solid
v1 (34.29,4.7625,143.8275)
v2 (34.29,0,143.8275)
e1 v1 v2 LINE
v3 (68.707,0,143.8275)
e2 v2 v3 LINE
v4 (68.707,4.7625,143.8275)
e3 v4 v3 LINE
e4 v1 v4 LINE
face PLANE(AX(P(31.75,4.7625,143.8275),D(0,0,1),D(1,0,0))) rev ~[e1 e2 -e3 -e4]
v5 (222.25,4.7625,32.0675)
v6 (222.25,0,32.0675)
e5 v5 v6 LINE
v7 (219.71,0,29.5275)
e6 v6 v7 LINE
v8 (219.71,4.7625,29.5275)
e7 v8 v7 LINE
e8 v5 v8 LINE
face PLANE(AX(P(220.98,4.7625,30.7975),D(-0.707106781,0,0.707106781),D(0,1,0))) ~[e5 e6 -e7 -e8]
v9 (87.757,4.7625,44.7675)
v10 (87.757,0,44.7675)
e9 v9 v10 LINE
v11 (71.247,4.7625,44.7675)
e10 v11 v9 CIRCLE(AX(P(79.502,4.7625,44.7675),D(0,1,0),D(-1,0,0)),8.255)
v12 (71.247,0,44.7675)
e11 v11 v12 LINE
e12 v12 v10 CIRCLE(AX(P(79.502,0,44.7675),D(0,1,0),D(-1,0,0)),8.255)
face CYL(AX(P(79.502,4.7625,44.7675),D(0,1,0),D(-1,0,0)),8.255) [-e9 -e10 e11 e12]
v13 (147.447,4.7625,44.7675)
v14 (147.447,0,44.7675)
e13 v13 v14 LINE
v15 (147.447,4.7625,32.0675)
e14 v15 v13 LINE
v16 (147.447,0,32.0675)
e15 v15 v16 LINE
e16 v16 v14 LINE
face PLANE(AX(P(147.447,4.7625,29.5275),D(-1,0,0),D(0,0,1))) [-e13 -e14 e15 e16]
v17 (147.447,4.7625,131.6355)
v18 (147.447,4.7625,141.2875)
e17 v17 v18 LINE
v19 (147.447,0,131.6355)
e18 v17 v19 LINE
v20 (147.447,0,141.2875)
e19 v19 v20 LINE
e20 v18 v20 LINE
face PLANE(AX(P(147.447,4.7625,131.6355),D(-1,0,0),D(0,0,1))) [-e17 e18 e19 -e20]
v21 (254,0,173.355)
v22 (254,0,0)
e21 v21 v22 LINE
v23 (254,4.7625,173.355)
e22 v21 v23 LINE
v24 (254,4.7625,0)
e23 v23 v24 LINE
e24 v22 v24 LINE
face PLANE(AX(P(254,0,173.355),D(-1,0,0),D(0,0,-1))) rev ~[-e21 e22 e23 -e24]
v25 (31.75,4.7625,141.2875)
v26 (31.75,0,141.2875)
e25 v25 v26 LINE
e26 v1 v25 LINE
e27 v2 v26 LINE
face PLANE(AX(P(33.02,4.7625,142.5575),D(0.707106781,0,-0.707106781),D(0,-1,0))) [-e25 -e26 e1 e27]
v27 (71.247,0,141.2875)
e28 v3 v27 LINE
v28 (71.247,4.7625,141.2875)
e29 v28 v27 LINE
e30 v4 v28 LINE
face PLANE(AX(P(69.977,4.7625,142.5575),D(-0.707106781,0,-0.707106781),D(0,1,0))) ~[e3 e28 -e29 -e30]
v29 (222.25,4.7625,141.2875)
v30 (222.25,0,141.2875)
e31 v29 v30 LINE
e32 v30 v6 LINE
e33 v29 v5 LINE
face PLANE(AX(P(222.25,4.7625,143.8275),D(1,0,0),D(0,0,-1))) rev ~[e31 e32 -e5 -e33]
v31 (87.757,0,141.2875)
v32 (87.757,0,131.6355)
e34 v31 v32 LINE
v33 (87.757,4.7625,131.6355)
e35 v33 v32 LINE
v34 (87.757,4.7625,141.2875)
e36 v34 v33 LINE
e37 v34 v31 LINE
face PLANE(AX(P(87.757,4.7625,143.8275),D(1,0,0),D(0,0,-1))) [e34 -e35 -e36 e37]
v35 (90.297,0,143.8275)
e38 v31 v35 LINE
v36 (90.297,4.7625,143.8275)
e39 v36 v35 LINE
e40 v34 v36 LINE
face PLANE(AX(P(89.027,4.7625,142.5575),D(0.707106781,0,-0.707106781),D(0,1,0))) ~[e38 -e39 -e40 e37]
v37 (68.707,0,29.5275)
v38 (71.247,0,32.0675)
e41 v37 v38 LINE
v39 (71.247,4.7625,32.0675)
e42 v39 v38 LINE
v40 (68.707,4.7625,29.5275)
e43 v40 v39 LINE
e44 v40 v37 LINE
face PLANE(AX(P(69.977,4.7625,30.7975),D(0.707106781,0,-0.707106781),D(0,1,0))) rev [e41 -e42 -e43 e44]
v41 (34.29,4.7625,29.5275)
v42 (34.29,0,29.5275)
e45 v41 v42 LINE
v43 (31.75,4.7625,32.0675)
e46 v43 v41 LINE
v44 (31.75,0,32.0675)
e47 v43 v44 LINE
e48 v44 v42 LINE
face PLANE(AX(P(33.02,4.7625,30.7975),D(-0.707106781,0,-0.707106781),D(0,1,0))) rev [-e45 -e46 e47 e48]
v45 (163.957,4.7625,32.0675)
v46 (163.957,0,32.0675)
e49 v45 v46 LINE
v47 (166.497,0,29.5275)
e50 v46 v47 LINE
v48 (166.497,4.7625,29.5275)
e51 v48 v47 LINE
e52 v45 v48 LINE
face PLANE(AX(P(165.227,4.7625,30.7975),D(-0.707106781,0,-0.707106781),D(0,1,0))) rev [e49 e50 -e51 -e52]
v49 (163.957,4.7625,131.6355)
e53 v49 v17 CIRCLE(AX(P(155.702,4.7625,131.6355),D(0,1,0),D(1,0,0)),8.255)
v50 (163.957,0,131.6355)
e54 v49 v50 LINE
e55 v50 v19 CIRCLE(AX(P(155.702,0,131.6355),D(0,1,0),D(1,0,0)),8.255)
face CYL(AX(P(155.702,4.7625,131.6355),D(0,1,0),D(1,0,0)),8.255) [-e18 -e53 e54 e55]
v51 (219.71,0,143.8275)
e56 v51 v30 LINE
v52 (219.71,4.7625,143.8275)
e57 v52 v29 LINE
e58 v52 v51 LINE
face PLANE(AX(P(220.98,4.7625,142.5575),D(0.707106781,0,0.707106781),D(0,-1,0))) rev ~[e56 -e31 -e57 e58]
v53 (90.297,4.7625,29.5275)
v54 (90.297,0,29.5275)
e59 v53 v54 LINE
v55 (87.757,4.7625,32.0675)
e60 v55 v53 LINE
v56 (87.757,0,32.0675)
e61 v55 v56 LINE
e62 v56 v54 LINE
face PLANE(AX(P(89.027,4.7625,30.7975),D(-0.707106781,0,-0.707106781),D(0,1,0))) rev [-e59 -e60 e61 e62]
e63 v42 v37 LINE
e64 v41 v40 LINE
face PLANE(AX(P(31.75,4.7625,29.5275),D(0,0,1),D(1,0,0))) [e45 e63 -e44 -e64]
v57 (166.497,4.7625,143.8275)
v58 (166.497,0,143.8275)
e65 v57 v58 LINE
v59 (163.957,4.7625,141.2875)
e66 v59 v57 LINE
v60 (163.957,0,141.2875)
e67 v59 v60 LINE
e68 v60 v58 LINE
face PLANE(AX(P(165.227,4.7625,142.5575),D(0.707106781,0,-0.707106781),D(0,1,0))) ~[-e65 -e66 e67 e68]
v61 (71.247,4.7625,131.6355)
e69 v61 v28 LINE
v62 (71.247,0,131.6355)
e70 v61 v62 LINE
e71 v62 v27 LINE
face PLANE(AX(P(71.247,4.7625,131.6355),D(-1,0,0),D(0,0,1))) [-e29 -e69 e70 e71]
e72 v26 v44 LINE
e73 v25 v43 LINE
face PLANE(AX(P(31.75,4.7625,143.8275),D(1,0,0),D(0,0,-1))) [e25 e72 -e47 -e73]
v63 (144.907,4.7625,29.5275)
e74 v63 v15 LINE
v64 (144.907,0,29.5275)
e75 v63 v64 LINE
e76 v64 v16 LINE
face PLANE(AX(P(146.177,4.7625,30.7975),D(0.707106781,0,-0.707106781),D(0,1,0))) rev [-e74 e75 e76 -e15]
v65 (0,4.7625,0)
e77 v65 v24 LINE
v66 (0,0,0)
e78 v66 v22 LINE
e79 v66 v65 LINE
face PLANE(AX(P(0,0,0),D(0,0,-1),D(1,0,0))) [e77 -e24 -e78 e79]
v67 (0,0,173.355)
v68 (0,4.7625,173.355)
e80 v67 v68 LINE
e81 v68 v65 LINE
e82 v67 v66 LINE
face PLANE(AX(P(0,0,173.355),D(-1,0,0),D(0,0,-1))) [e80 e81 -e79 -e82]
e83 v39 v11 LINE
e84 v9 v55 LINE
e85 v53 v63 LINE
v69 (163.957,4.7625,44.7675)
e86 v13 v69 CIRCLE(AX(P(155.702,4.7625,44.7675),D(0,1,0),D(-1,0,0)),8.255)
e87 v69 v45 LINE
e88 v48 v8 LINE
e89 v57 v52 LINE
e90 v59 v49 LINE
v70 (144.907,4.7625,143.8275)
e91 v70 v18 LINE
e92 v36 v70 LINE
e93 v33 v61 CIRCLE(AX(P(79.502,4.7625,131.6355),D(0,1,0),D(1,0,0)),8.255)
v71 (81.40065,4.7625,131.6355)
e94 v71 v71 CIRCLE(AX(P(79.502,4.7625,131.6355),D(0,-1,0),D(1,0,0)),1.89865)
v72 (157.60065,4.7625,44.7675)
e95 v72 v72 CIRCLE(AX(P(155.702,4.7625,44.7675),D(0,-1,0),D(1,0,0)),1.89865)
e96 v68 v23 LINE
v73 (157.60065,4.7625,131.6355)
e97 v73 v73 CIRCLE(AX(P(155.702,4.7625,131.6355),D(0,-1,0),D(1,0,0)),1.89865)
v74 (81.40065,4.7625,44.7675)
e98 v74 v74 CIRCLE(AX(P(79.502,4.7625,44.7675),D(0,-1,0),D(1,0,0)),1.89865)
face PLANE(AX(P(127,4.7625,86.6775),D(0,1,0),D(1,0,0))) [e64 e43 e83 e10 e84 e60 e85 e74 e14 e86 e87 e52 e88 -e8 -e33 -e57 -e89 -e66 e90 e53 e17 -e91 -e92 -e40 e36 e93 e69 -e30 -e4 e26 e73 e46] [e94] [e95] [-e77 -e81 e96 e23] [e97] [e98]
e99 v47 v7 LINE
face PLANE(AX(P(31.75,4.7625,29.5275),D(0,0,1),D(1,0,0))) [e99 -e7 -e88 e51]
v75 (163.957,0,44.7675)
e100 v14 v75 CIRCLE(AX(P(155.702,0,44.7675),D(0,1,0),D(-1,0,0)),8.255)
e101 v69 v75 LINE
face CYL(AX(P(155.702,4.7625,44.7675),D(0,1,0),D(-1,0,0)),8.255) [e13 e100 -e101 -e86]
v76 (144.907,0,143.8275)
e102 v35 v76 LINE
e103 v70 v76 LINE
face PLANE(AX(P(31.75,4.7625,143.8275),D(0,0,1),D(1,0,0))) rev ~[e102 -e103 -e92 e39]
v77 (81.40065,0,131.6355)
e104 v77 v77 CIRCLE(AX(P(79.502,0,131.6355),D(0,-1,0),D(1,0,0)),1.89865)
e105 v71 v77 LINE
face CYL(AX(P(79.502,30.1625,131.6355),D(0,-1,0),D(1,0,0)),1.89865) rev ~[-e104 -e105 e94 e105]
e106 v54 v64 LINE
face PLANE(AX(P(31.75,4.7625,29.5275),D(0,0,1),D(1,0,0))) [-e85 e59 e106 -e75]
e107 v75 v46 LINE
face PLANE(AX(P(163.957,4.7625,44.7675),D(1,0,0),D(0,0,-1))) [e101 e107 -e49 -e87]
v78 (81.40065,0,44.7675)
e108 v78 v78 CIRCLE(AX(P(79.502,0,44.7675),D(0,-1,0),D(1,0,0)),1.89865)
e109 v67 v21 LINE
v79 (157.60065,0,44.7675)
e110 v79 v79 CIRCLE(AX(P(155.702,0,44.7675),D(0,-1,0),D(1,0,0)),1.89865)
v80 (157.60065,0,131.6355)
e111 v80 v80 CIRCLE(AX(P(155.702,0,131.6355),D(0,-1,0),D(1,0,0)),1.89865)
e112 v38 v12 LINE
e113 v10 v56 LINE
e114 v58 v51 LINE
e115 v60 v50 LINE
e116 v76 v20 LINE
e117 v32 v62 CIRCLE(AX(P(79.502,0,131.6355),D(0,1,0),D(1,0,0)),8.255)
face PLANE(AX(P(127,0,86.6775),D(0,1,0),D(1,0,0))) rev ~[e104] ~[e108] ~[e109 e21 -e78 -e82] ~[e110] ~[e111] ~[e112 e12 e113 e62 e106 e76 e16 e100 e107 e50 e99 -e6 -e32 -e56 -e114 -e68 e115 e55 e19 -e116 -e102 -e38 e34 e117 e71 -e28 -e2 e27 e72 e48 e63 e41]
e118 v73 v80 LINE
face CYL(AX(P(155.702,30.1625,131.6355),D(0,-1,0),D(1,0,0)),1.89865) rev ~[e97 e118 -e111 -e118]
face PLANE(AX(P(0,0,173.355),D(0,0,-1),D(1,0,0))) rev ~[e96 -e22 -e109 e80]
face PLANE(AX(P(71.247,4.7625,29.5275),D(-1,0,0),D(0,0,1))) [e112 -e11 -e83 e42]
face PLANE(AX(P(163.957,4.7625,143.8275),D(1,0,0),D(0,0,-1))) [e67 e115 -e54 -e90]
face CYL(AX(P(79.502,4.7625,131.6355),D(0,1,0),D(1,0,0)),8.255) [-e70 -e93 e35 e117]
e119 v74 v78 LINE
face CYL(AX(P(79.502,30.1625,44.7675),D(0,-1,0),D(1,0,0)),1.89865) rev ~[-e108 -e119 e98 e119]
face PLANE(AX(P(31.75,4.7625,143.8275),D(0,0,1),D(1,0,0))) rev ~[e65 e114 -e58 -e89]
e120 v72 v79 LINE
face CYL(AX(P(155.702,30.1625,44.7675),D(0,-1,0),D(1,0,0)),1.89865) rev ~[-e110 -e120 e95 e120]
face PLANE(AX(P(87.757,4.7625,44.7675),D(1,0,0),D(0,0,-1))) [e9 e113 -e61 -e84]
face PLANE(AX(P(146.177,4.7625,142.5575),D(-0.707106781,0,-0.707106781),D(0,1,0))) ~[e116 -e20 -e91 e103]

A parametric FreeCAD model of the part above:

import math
import FreeCAD as App
import Part
import Sketcher
from FreeCAD import Vector
Q = App.Units.Quantity


def edges_at(feature, points):
    """Names of the edges that pass closest to the given points."""
    edges = feature.Shape.Edges
    near = lambda p: min(range(len(edges)), key=lambda i: edges[i].distToShape(Part.Vertex(*p))[0])
    return sorted({f"Edge{near(p) + 1}" for p in points})

doc = App.newDocument("Part")
body = doc.addObject("PartDesign::Body", "Body")

sketch1 = doc.addObject("Sketcher::SketchObject", "Sketch")
body.addObject(sketch1)
sketch1.AttachmentSupport = (doc.XZ_Plane, [""])
sketch1.MapMode = "FlatFace"
sketch1.addGeometry([
    Part.LineSegment(Vector(0, 0, 0), Vector(0, 173, 0)),
    Part.LineSegment(Vector(0, 173, 0), Vector(254, 173, 0)),
    Part.LineSegment(Vector(254, 173, 0), Vector(254, 0, 0)),
    Part.LineSegment(Vector(254, 0, 0), Vector(0, 0, 0)),
], False)
sketch1.addConstraint([
    Sketcher.Constraint("Coincident", 0, 2, 1, 1),
    Sketcher.Constraint("Coincident", 1, 2, 2, 1),
    Sketcher.Constraint("Coincident", 2, 2, 3, 1),
    Sketcher.Constraint("Coincident", 3, 2, 0, 1),
    Sketcher.Constraint("Vertical", 0),
    Sketcher.Constraint("Horizontal", 1),
    Sketcher.Constraint("Vertical", 2),
    Sketcher.Constraint("Horizontal", 3),
    Sketcher.Constraint("Coincident", 3, 2, -1, 1),
    Sketcher.Constraint("DistanceX", 1, 1, 1, 2, Q("10 in")),
    Sketcher.Constraint("DistanceY", 0, 1, 0, 2, Q("6.825 in")),
])
pad1 = doc.addObject("PartDesign::Pad", "Pad")
body.addObject(pad1)
pad1.Profile = sketch1
pad1.Length = Q("0.1875 in")
pad1.Reversed = True

sketch2 = doc.addObject("Sketcher::SketchObject", "Sketch001")
body.addObject(sketch2)
sketch2.AttachmentSupport = (doc.XZ_Plane, [""])
sketch2.MapMode = "FlatFace"
sketch2.AttachmentOffset = App.Placement(Vector(0, 0, -0.1875 * 25.4), App.Rotation())
sketch2.addGeometry([
    Part.LineSegment(Vector(32, 30, 0), Vector(32, 144, 0)),
    Part.LineSegment(Vector(32, 144, 0), Vector(222, 144, 0)),
    Part.LineSegment(Vector(222, 144, 0), Vector(222, 30, 0)),
    Part.LineSegment(Vector(222, 30, 0), Vector(32, 30, 0)),
], False)
sketch2.addConstraint([
    Sketcher.Constraint("Coincident", 0, 2, 1, 1),
    Sketcher.Constraint("Coincident", 1, 2, 2, 1),
    Sketcher.Constraint("Coincident", 2, 2, 3, 1),
    Sketcher.Constraint("Coincident", 3, 2, 0, 1),
    Sketcher.Constraint("Vertical", 0),
    Sketcher.Constraint("Horizontal", 1),
    Sketcher.Constraint("Vertical", 2),
    Sketcher.Constraint("Horizontal", 3),
    Sketcher.Constraint("DistanceX", 1, 1, 1, 2, Q("7.5 in")),
    Sketcher.Constraint("DistanceY", 0, 1, 0, 2, Q("4.5 in")),
    Sketcher.Constraint("DistanceX", -1, 1, 0, 2, Q("1.25 in")),
    Sketcher.Constraint("DistanceY", -1, 1, 0, 2, Q("5.6625 in")),
])
pocket1 = doc.addObject("PartDesign::Pocket", "Pocket")
body.addObject(pocket1)
pocket1.Profile = sketch2
pocket1.Length = Q("0.1875 in")
pocket1.Reversed = True

sketch3 = doc.addObject("Sketcher::SketchObject", "Sketch002")
body.addObject(sketch3)
sketch3.AttachmentSupport = (doc.XZ_Plane, [""])
sketch3.MapMode = "FlatFace"
sketch3.AttachmentOffset = App.Placement(Vector(0, 0, -0.1875 * 25.4), App.Rotation())
sketch3.addGeometry([
    Part.LineSegment(Vector(164, 30, 0), Vector(147, 30, 0)),
    Part.LineSegment(Vector(147, 30, 0), Vector(147, 45, 0)),
    Part.ArcOfCircle(Part.Circle(Vector(156, 45, 0), Vector(0, 0, 1), 8), math.radians(0), math.radians(180)),
    Part.LineSegment(Vector(164, 45, 0), Vector(164, 30, 0)),
    Part.LineSegment(Vector(71, 30, 0), Vector(71, 45, 0)),
    Part.ArcOfCircle(Part.Circle(Vector(80, 45, 0), Vector(0, 0, 1), 8), math.radians(0), math.radians(180)),
    Part.LineSegment(Vector(88, 45, 0), Vector(88, 30, 0)),
    Part.LineSegment(Vector(88, 30, 0), Vector(71, 30, 0)),
    Part.LineSegment(Vector(71, 144, 0), Vector(88, 144, 0)),
    Part.LineSegment(Vector(88, 144, 0), Vector(88, 132, 0)),
    Part.ArcOfCircle(Part.Circle(Vector(80, 132, 0), Vector(0, 0, 1), 8), math.radians(180), math.radians(360)),
    Part.LineSegment(Vector(71, 132, 0), Vector(71, 144, 0)),
    Part.LineSegment(Vector(147, 132, 0), Vector(147, 144, 0)),
    Part.LineSegment(Vector(147, 144, 0), Vector(164, 144, 0)),
    Part.LineSegment(Vector(164, 144, 0), Vector(164, 132, 0)),
    Part.ArcOfCircle(Part.Circle(Vector(156, 132, 0), Vector(0, 0, 1), 8), math.radians(180), math.radians(360)),
], False)
sketch3.addConstraint([
    Sketcher.Constraint("Coincident", 0, 2, 1, 1),
    Sketcher.Constraint("Tangent", 1, 2, 2, 2),
    Sketcher.Constraint("Tangent", 2, 1, 3, 1),
    Sketcher.Constraint("Coincident", 3, 2, 0, 1),
    Sketcher.Constraint("Tangent", 4, 2, 5, 2),
    Sketcher.Constraint("Tangent", 5, 1, 6, 1),
    Sketcher.Constraint("Coincident", 6, 2, 7, 1),
    Sketcher.Constraint("Coincident", 7, 2, 4, 1),
    Sketcher.Constraint("Coincident", 8, 2, 9, 1),
    Sketcher.Constraint("Tangent", 9, 2, 10, 2),
    Sketcher.Constraint("Tangent", 10, 1, 11, 1),
    Sketcher.Constraint("Coincident", 11, 2, 8, 1),
    Sketcher.Constraint("Coincident", 12, 2, 13, 1),
    Sketcher.Constraint("Coincident", 13, 2, 14, 1),
    Sketcher.Constraint("Tangent", 14, 2, 15, 2),
    Sketcher.Constraint("Tangent", 15, 1, 12, 1),
    Sketcher.Constraint("Horizontal", 0),
    Sketcher.Constraint("Vertical", 1),
    Sketcher.Constraint("Vertical", 3),
    Sketcher.Constraint("Vertical", 4),
    Sketcher.Constraint("Vertical", 6),
    Sketcher.Constraint("Horizontal", 7),
    Sketcher.Constraint("Horizontal", 8),
    Sketcher.Constraint("Vertical", 9),
    Sketcher.Constraint("Vertical", 11),
    Sketcher.Constraint("Vertical", 12),
    Sketcher.Constraint("Horizontal", 13),
    Sketcher.Constraint("Vertical", 14),
    Sketcher.Constraint("Equal", 2, 5),
    Sketcher.Constraint("Equal", 5, 10),
    Sketcher.Constraint("Equal", 10, 15),
    Sketcher.Constraint("Horizontal", 2, 3, 5, 3),
    Sketcher.Constraint("Horizontal", 10, 3, 15, 3),
    Sketcher.Constraint("Horizontal", 3, 2, 6, 2),
    Sketcher.Constraint("Horizontal", 11, 2, 12, 2),
    Sketcher.Constraint("Vertical", 5, 3, 10, 3),
    Sketcher.Constraint("Vertical", 2, 3, 15, 3),
    Sketcher.Constraint("DistanceY", 1, 1, 1, 2, Q("0.6 in")),
    Sketcher.Constraint("Radius", 2, Q("0.325 in")),
    Sketcher.Constraint("DistanceX", 5, 3, 2, 3, Q("3 in")),
    Sketcher.Constraint("DistanceY", 9, 2, 9, 1, Q("0.48 in")),
    Sketcher.Constraint("DistanceY", 5, 1, 8, 2, Q("3.9 in")),
    Sketcher.Constraint("DistanceX", -1, 1, 2, 3, Q("6.13 in")),
    Sketcher.Constraint("DistanceY", -1, 1, 2, 3, Q("1.7625 in")),
])
pad2 = doc.addObject("PartDesign::Pad", "Pad001")
body.addObject(pad2)
pad2.Profile = sketch3
pad2.Length = Q("0.1875 in")

sketch4 = doc.addObject("Sketcher::SketchObject", "Sketch003")
body.addObject(sketch4)
sketch4.AttachmentSupport = (doc.XZ_Plane, [""])
sketch4.MapMode = "FlatFace"
sketch4.AttachmentOffset = App.Placement(Vector(0, 0, -0.1875 * 25.4), App.Rotation())
sketch4.addGeometry([
    Part.Circle(Vector(79.5, 44.8, 0), Vector(0, 0, 1), 1.9),
    Part.Circle(Vector(155.7, 44.8, 0), Vector(0, 0, 1), 1.9),
    Part.Circle(Vector(79.5, 131.6, 0), Vector(0, 0, 1), 1.9),
    Part.Circle(Vector(155.7, 131.6, 0), Vector(0, 0, 1), 1.9),
], False)
sketch4.addConstraint([
    Sketcher.Constraint("Equal", 0, 1),
    Sketcher.Constraint("Equal", 1, 2),
    Sketcher.Constraint("Equal", 2, 3),
    Sketcher.Constraint("Horizontal", 0, 3, 1, 3),
    Sketcher.Constraint("Horizontal", 2, 3, 3, 3),
    Sketcher.Constraint("Vertical", 0, 3, 2, 3),
    Sketcher.Constraint("Vertical", 1, 3, 3, 3),
    Sketcher.Constraint("DistanceX", 0, 3, 1, 3, Q("3 in")),
    Sketcher.Constraint("Diameter", 0, Q("0.1495 in")),
    Sketcher.Constraint("DistanceX", -1, 1, 0, 3, Q("3.13 in")),
    Sketcher.Constraint("DistanceY", 0, 3, 2, 3, Q("3.42 in")),
    Sketcher.Constraint("DistanceY", -1, 1, 0, 3, Q("1.7625 in")),
])
doc.recompute()
hole = doc.addObject("PartDesign::Hole", "Hole")
body.addObject(hole)
hole.Profile = sketch4
hole.ThreadType = "None"
hole.Diameter = Q("0.1495 in")
hole.DepthType = "Dimension"
hole.Depth = Q("1 in")
hole.DrillPoint = "Angled"
hole.DrillPointAngle = 118
hole.Reversed = True
doc.recompute()

chamfer = doc.addObject("PartDesign::Chamfer", "Chamfer")
body.addObject(chamfer)
chamfer.Base = (hole, edges_at(hole, [
    (31.75, 2.381, 143.827),
    (31.75, 2.381, 29.527),
    (222.25, 2.381, 29.527),
    (222.25, 2.381, 143.827),
    (147.447, 2.381, 29.527),
    (163.957, 2.381, 29.527),
    (71.247, 2.381, 29.527),
    (87.757, 2.381, 29.527),
    (87.757, 2.381, 143.827),
    (71.247, 2.381, 143.827),
    (163.957, 2.381, 143.827),
    (147.447, 2.381, 143.827),
]))
chamfer.Size = Q("0.1 in")

doc.recompute()
